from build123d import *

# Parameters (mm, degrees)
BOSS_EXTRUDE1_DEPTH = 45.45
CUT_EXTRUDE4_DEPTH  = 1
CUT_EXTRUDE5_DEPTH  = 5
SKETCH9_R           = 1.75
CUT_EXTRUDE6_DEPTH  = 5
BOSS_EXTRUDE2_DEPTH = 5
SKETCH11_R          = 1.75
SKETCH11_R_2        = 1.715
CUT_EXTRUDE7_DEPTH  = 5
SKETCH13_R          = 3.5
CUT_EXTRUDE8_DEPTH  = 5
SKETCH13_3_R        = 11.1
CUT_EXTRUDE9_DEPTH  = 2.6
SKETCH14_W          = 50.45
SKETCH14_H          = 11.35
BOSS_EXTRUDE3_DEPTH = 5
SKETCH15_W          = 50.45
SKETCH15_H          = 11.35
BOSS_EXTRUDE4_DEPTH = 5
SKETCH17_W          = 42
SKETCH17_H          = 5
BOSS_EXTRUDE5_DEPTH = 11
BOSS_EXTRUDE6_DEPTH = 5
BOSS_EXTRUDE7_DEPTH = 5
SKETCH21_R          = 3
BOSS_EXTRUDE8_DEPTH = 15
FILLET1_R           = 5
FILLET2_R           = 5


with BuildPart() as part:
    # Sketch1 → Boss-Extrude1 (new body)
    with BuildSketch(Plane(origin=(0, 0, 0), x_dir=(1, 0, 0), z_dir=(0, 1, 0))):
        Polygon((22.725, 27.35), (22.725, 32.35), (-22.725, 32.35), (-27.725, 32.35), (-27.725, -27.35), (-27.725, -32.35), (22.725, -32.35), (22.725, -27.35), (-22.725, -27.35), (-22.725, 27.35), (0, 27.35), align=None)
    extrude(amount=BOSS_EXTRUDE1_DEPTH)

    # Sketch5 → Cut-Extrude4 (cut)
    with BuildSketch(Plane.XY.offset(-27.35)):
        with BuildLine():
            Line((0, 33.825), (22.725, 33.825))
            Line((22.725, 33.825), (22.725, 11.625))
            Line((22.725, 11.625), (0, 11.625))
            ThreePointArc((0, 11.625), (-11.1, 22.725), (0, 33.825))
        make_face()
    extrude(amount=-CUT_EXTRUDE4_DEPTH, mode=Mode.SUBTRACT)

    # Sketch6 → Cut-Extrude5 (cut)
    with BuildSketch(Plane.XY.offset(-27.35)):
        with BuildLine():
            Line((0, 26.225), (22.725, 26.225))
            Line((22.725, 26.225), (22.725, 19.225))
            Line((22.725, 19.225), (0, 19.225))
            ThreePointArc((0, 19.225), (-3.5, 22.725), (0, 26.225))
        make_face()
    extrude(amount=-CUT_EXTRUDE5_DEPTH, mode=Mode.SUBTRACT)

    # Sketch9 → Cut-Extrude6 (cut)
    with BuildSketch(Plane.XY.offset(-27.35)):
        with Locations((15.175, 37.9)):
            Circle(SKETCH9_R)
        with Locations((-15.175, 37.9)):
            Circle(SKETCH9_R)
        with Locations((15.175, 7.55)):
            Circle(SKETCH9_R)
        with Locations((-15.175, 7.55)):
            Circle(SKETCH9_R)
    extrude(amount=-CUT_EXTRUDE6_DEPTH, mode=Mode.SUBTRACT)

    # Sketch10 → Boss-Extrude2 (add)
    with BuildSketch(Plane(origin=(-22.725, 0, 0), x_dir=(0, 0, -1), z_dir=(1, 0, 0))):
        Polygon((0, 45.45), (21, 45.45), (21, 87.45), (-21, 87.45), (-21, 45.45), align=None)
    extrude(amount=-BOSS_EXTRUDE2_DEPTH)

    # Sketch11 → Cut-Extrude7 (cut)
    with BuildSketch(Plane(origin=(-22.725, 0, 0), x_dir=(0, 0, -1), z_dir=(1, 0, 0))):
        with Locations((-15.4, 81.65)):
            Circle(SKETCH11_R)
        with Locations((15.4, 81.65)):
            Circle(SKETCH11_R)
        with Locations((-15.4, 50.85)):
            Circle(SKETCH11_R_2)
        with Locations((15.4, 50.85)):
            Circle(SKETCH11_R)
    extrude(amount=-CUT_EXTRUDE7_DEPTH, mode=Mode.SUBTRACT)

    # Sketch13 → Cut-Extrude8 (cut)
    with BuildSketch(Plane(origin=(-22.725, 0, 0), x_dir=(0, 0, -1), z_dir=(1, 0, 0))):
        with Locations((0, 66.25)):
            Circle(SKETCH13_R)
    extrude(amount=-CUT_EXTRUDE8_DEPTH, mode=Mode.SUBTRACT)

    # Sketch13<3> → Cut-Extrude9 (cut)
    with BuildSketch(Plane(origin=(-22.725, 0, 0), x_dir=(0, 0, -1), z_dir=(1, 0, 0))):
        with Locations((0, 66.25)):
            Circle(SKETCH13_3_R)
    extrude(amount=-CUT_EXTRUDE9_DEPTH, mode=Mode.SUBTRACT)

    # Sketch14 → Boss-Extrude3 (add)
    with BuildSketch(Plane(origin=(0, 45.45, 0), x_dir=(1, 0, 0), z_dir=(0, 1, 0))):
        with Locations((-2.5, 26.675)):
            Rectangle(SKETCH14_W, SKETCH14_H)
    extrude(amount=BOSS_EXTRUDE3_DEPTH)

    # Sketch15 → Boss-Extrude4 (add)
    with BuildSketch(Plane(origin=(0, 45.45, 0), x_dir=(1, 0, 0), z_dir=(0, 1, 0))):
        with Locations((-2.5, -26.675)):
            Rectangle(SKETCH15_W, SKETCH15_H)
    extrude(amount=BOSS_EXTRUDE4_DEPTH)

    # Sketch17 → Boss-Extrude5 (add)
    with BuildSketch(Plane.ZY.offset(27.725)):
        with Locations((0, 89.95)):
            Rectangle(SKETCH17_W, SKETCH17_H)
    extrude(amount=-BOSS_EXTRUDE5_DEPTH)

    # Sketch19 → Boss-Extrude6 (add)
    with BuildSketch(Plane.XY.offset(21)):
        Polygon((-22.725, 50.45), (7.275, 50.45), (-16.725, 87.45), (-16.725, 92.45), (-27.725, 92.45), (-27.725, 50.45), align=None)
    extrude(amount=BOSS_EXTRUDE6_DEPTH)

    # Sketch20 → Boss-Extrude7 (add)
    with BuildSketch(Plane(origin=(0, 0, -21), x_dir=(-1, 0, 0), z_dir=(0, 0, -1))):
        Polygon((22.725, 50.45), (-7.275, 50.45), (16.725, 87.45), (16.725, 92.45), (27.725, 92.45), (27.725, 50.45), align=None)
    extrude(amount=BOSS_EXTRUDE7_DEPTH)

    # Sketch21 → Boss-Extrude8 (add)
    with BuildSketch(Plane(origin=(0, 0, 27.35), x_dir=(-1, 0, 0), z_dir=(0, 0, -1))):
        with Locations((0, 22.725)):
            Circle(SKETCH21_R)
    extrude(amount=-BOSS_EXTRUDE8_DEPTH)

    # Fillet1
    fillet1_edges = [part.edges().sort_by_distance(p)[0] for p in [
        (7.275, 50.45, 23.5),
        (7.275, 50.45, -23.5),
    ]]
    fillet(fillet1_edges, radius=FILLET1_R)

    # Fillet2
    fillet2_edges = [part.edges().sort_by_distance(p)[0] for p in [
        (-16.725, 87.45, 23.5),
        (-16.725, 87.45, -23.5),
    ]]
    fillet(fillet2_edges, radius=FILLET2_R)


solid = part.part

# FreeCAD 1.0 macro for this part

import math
import FreeCAD as App
import Part
import Sketcher

V = App.Vector
Q = App.Units.Quantity


def edges_at(feature, points):
    """Names of the edges that pass closest to the given points."""
    edges = feature.Shape.Edges
    near = lambda p: min(range(len(edges)), key=lambda i: edges[i].distToShape(Part.Vertex(*p))[0])
    return sorted({f"Edge{near(p) + 1}" for p in points})


def add_polygon(sketch, points):
    """Adds a closed chain of lines whose ends are joined by coincident constraints."""
    first, n = sketch.GeometryCount, len(points)
    for a, b in zip(points, points[1:] + points[:1]):
        sketch.addGeometry(Part.LineSegment(App.Vector(*a, 0), App.Vector(*b, 0)), False)
    for i in range(n):
        sketch.addConstraint(Sketcher.Constraint("Coincident", first + i, 2, first + (i + 1) % n, 1))

doc = App.newDocument("Part")
params = doc.addObject("Spreadsheet::Sheet", "Params")
for row, (alias, value) in enumerate([
    ("sketch1_height", "5 mm"),
    ("sketch1_height2", "64.7 mm"),
    ("sketch1_width", "50.45 mm"),
    ("pad1_length", "45.45 mm"),
    ("sketch2_radius", "11.1 mm"),
    ("pocket1_length", "1 mm"),
    ("sketch3_radius", "3.5 mm"),
    ("pocket2_length", "5 mm"),
    ("sketch4_diameter", "3.5 mm"),
    ("pocket3_length", "5 mm"),
    ("sketch5_width", "42 mm"),
    ("pad2_length", "5 mm"),
    ("sketch6_diameter", "3.5 mm"),
    ("sketch6_diameter2", "3.43 mm"),
    ("pocket4_length", "5 mm"),
    ("sketch7_diameter", "7 mm"),
    ("pocket5_length", "5 mm"),
    ("sketch8_diameter", "22.2 mm"),
    ("pocket6_length", "2.6 mm"),
    ("sketch9_width", "50.45 mm"),
    ("sketch9_height", "11.35 mm"),
    ("pad3_length", "5 mm"),
    ("sketch10_width", "50.45 mm"),
    ("sketch10_height", "11.35 mm"),
    ("pad4_length", "5 mm"),
    ("sketch11_width", "5 mm"),
    ("sketch11_height", "42 mm"),
    ("pad5_length", "11 mm"),
    ("sketch12_width", "11 mm"),
    ("sketch12_width2", "35 mm"),
    ("sketch12_height", "5 mm"),
    ("sketch12_height2", "42 mm"),
    ("pad6_length", "5 mm"),
    ("sketch13_width", "35 mm"),
    ("sketch13_width2", "11 mm"),
    ("sketch13_height", "42 mm"),
    ("sketch13_height2", "5 mm"),
    ("pad7_length", "5 mm"),
    ("sketch14_diameter", "6 mm"),
    ("pad8_length", "15 mm"),
    ("fillet_radius", "5 mm"),
    ("fillet2_radius", "5 mm"),
], start=1):
    params.set(f"A{row}", alias)
    params.set(f"B{row}", "=" + value)
    params.setAlias(f"B{row}", alias)

body = doc.addObject("PartDesign::Body", "Body")

# Sketch on XZ plane
sketch1 = doc.addObject("Sketcher::SketchObject", "Sketch")
body.addObject(sketch1)
sketch1.AttachmentSupport = (doc.XZ_Plane, [""])
sketch1.MapMode = "FlatFace"
add_polygon(sketch1, [(22.725, -27.35), (22.725, -32.35), (-27.725, -32.35), (-27.725, 32.35), (22.725, 32.35), (22.725, 27.35), (-22.725, 27.35), (-22.725, -27.35)])  # lines 0-7
sketch1.addConstraint([
    Sketcher.Constraint("Vertical", 0),
    Sketcher.Constraint("Horizontal", 1),
    Sketcher.Constraint("Vertical", 2),
    Sketcher.Constraint("Horizontal", 3),
    Sketcher.Constraint("Vertical", 4),
    Sketcher.Constraint("Horizontal", 5),
    Sketcher.Constraint("Vertical", 6),
    Sketcher.Constraint("Horizontal", 7),
    Sketcher.Constraint("Symmetric", 4, 2, 6, 2, -1, 1),
    Sketcher.Constraint("Symmetric", 0, 2, 3, 2, -1),
    Sketcher.Constraint("DistanceY", 0, 2, 0, 1, Q("5 mm")),
    Sketcher.Constraint("DistanceY", 2, 1, 2, 2, Q("64.7 mm")),
    Sketcher.Constraint("DistanceX", 2, 2, 5, 2, Q("5 mm")),
    Sketcher.Constraint("DistanceX", 1, 2, 1, 1, Q("50.45 mm")),
])
sketch1.setExpression("Constraints[18]", "Params.sketch1_height")
sketch1.setExpression("Constraints[19]", "Params.sketch1_height2")
sketch1.setExpression("Constraints[21]", "Params.sketch1_width")
pad1 = doc.addObject("PartDesign::Pad", "Pad")
body.addObject(pad1)
pad1.Profile = sketch1
pad1.setExpression("Length", "Params.pad1_length")
pad1.Reversed = True

# Sketch on XY plane
sketch2 = doc.addObject("Sketcher::SketchObject", "Sketch001")
body.addObject(sketch2)
sketch2.AttachmentSupport = (doc.XY_Plane, [""])
sketch2.MapMode = "FlatFace"
sketch2.AttachmentOffset = App.Placement(V(0, 0, -27.35), App.Rotation())
sketch2.addGeometry([
    Part.LineSegment(V(22.725, 33.825, 0), V(0, 33.825, 0)),
    Part.ArcOfCircle(Part.Circle(V(0, 22.725, 0), V(0, 0, 1), 11.1), math.radians(90), math.radians(270)),
    Part.LineSegment(V(0, 11.625, 0), V(22.725, 11.625, 0)),
    Part.LineSegment(V(22.725, 11.625, 0), V(22.725, 33.825, 0)),
], False)
sketch2.addConstraint([
    Sketcher.Constraint("Tangent", 0, 2, 1, 1),
    Sketcher.Constraint("Tangent", 1, 2, 2, 1),
    Sketcher.Constraint("Coincident", 2, 2, 3, 1),
    Sketcher.Constraint("Coincident", 3, 2, 0, 1),
    Sketcher.Constraint("Horizontal", 0),
    Sketcher.Constraint("Horizontal", 2),
    Sketcher.Constraint("Vertical", 3),
    Sketcher.Constraint("PointOnObject", 1, 3, -2),
    Sketcher.Constraint("Radius", 1, Q("11.1 mm")),
    Sketcher.Constraint("DistanceX", 0, 2, 0, 1, Q("22.725 mm")),
    Sketcher.Constraint("DistanceY", -1, 1, 1, 3, Q("22.725 mm")),
])
sketch2.setExpression("Constraints[8]", "Params.sketch2_radius")
pocket1 = doc.addObject("PartDesign::Pocket", "Pocket")
body.addObject(pocket1)
pocket1.Profile = sketch2
pocket1.setExpression("Length", "Params.pocket1_length")

# Sketch on XY plane
sketch3 = doc.addObject("Sketcher::SketchObject", "Sketch002")
body.addObject(sketch3)
sketch3.AttachmentSupport = (doc.XY_Plane, [""])
sketch3.MapMode = "FlatFace"
sketch3.AttachmentOffset = App.Placement(V(0, 0, -27.35), App.Rotation())
sketch3.addGeometry([
    Part.LineSegment(V(22.725, 26.225, 0), V(0, 26.225, 0)),
    Part.ArcOfCircle(Part.Circle(V(0, 22.725, 0), V(0, 0, 1), 3.5), math.radians(90), math.radians(270)),
    Part.LineSegment(V(0, 19.225, 0), V(22.725, 19.225, 0)),
    Part.LineSegment(V(22.725, 19.225, 0), V(22.725, 26.225, 0)),
], False)
sketch3.addConstraint([
    Sketcher.Constraint("Tangent", 0, 2, 1, 1),
    Sketcher.Constraint("Tangent", 1, 2, 2, 1),
    Sketcher.Constraint("Coincident", 2, 2, 3, 1),
    Sketcher.Constraint("Coincident", 3, 2, 0, 1),
    Sketcher.Constraint("Horizontal", 0),
    Sketcher.Constraint("Horizontal", 2),
    Sketcher.Constraint("Vertical", 3),
    Sketcher.Constraint("PointOnObject", 1, 3, -2),
    Sketcher.Constraint("Radius", 1, Q("3.5 mm")),
    Sketcher.Constraint("DistanceX", 0, 2, 0, 1, Q("22.725 mm")),
    Sketcher.Constraint("DistanceY", -1, 1, 1, 3, Q("22.725 mm")),
])
sketch3.setExpression("Constraints[8]", "Params.sketch3_radius")
pocket2 = doc.addObject("PartDesign::Pocket", "Pocket001")
body.addObject(pocket2)
pocket2.Profile = sketch3
pocket2.setExpression("Length", "Params.pocket2_length")

# Sketch on XY plane
sketch4 = doc.addObject("Sketcher::SketchObject", "Sketch003")
body.addObject(sketch4)
sketch4.AttachmentSupport = (doc.XY_Plane, [""])
sketch4.MapMode = "FlatFace"
sketch4.AttachmentOffset = App.Placement(V(0, 0, -27.35), App.Rotation())
sketch4.addGeometry([
    Part.Circle(V(15.175, 37.9, 0), V(0, 0, 1), 1.75),
    Part.Circle(V(-15.175, 37.9, 0), V(0, 0, 1), 1.75),
    Part.Circle(V(15.175, 7.55, 0), V(0, 0, 1), 1.75),
    Part.Circle(V(-15.175, 7.55, 0), V(0, 0, 1), 1.75),
], False)
sketch4.addConstraint([
    Sketcher.Constraint("Equal", 0, 1),
    Sketcher.Constraint("Equal", 1, 2),
    Sketcher.Constraint("Equal", 2, 3),
    Sketcher.Constraint("Symmetric", 0, 3, 1, 3, -2),
    Sketcher.Constraint("Symmetric", 2, 3, 3, 3, -2),
    Sketcher.Constraint("Vertical", 0, 3, 2, 3),
    Sketcher.Constraint("Diameter", 0, Q("3.5 mm")),
    Sketcher.Constraint("DistanceY", -1, 1, 0, 3, Q("37.9 mm")),
    Sketcher.Constraint("DistanceY", -1, 1, 2, 3, Q("7.55 mm")),
    Sketcher.Constraint("DistanceX", 1, 3, 0, 3, Q("30.35 mm")),
])
sketch4.setExpression("Constraints[6]", "Params.sketch4_diameter")
pocket3 = doc.addObject("PartDesign::Pocket", "Pocket002")
body.addObject(pocket3)
pocket3.Profile = sketch4
pocket3.setExpression("Length", "Params.pocket3_length")

# Sketch on YZ plane
sketch5 = doc.addObject("Sketcher::SketchObject", "Sketch004")
body.addObject(sketch5)
sketch5.AttachmentSupport = (doc.YZ_Plane, [""])
sketch5.MapMode = "FlatFace"
sketch5.AttachmentOffset = App.Placement(V(0, 0, -22.725), App.Rotation())
add_polygon(sketch5, [(45.45, -21), (87.45, -21), (87.45, 21), (45.45, 21)])  # lines 0-3
sketch5.addConstraint([
    Sketcher.Constraint("Horizontal", 0),
    Sketcher.Constraint("Vertical", 1),
    Sketcher.Constraint("Horizontal", 2),
    Sketcher.Constraint("Vertical", 3),
    Sketcher.Constraint("Equal", 2, 1),
    Sketcher.Constraint("DistanceX", 0, 1, 0, 2, Q("42 mm")),
    Sketcher.Constraint("DistanceY", 0, 2, -1, 1, Q("21 mm")),
    Sketcher.Constraint("DistanceX", -1, 1, 0, 2, Q("87.45 mm")),
])
sketch5.setExpression("Constraints[9]", "Params.sketch5_width")
pad2 = doc.addObject("PartDesign::Pad", "Pad001")
body.addObject(pad2)
pad2.Profile = sketch5
pad2.setExpression("Length", "Params.pad2_length")
pad2.Reversed = True

# Sketch on YZ plane
sketch6 = doc.addObject("Sketcher::SketchObject", "Sketch005")
body.addObject(sketch6)
sketch6.AttachmentSupport = (doc.YZ_Plane, [""])
sketch6.MapMode = "FlatFace"
sketch6.AttachmentOffset = App.Placement(V(0, 0, -22.725), App.Rotation())
sketch6.addGeometry([
    Part.Circle(V(81.65, 15.4, 0), V(0, 0, 1), 1.75),
    Part.Circle(V(81.65, -15.4, 0), V(0, 0, 1), 1.75),
    Part.Circle(V(50.85, 15.4, 0), V(0, 0, 1), 1.715),
    Part.Circle(V(50.85, -15.4, 0), V(0, 0, 1), 1.75),
], False)
sketch6.addConstraint([
    Sketcher.Constraint("Equal", 0, 1),
    Sketcher.Constraint("Equal", 1, 3),
    Sketcher.Constraint("Symmetric", 0, 3, 1, 3, -1),
    Sketcher.Constraint("Symmetric", 2, 3, 3, 3, -1),
    Sketcher.Constraint("Horizontal", 0, 3, 2, 3),
    Sketcher.Constraint("Diameter", 0, Q("3.5 mm")),
    Sketcher.Constraint("Diameter", 2, Q("3.43 mm")),
    Sketcher.Constraint("DistanceY", -1, 1, 0, 3, Q("15.4 mm")),
    Sketcher.Constraint("DistanceX", 2, 3, 0, 3, Q("30.8 mm")),
    Sketcher.Constraint("DistanceX", -1, 1, 0, 3, Q("81.65 mm")),
])
sketch6.setExpression("Constraints[5]", "Params.sketch6_diameter")
sketch6.setExpression("Constraints[6]", "Params.sketch6_diameter2")
pocket4 = doc.addObject("PartDesign::Pocket", "Pocket003")
body.addObject(pocket4)
pocket4.Profile = sketch6
pocket4.setExpression("Length", "Params.pocket4_length")

# Sketch on YZ plane
sketch7 = doc.addObject("Sketcher::SketchObject", "Sketch006")
body.addObject(sketch7)
sketch7.AttachmentSupport = (doc.YZ_Plane, [""])
sketch7.MapMode = "FlatFace"
sketch7.AttachmentOffset = App.Placement(V(0, 0, -22.725), App.Rotation())
sketch7.addGeometry(Part.Circle(V(66.25, 0, 0), V(0, 0, 1), 3.5), False)
sketch7.addConstraint([
    Sketcher.Constraint("PointOnObject", 0, 3, -1),
    Sketcher.Constraint("Diameter", 0, Q("7 mm")),
    Sketcher.Constraint("DistanceX", -1, 1, 0, 3, Q("66.25 mm")),
])
sketch7.setExpression("Constraints[1]", "Params.sketch7_diameter")
pocket5 = doc.addObject("PartDesign::Pocket", "Pocket004")
body.addObject(pocket5)
pocket5.Profile = sketch7
pocket5.setExpression("Length", "Params.pocket5_length")

# Sketch on YZ plane
sketch8 = doc.addObject("Sketcher::SketchObject", "Sketch007")
body.addObject(sketch8)
sketch8.AttachmentSupport = (doc.YZ_Plane, [""])
sketch8.MapMode = "FlatFace"
sketch8.AttachmentOffset = App.Placement(V(0, 0, -22.725), App.Rotation())
sketch8.addGeometry(Part.Circle(V(66.25, 0, 0), V(0, 0, 1), 11.1), False)
sketch8.addConstraint([
    Sketcher.Constraint("PointOnObject", 0, 3, -1),
    Sketcher.Constraint("Diameter", 0, Q("22.2 mm")),
    Sketcher.Constraint("DistanceX", -1, 1, 0, 3, Q("66.25 mm")),
])
sketch8.setExpression("Constraints[1]", "Params.sketch8_diameter")
pocket6 = doc.addObject("PartDesign::Pocket", "Pocket005")
body.addObject(pocket6)
pocket6.Profile = sketch8
pocket6.setExpression("Length", "Params.pocket6_length")

# Sketch on XZ plane
sketch9 = doc.addObject("Sketcher::SketchObject", "Sketch008")
body.addObject(sketch9)
sketch9.AttachmentSupport = (doc.XZ_Plane, [""])
sketch9.MapMode = "FlatFace"
sketch9.AttachmentOffset = App.Placement(V(0, 0, -45.45), App.Rotation())
add_polygon(sketch9, [(-27.725, -32.35), (-27.725, -21), (22.725, -21), (22.725, -32.35)])  # lines 0-3
sketch9.addConstraint([
    Sketcher.Constraint("Vertical", 0),
    Sketcher.Constraint("Horizontal", 1),
    Sketcher.Constraint("Vertical", 2),
    Sketcher.Constraint("Horizontal", 3),
    Sketcher.Constraint("DistanceY", 0, 2, -1, 1, Q("21 mm")),
    Sketcher.Constraint("DistanceX", 1, 1, 1, 2, Q("50.45 mm")),
    Sketcher.Constraint("DistanceY", 0, 1, 0, 2, Q("11.35 mm")),
    Sketcher.Constraint("DistanceX", 0, 2, -1, 1, Q("27.725 mm")),
])
sketch9.setExpression("Constraints[9]", "Params.sketch9_width")
sketch9.setExpression("Constraints[10]", "Params.sketch9_height")
pad3 = doc.addObject("PartDesign::Pad", "Pad002")
body.addObject(pad3)
pad3.Profile = sketch9
pad3.setExpression("Length", "Params.pad3_length")
pad3.Reversed = True

# Sketch on XZ plane
sketch10 = doc.addObject("Sketcher::SketchObject", "Sketch009")
body.addObject(sketch10)
sketch10.AttachmentSupport = (doc.XZ_Plane, [""])
sketch10.MapMode = "FlatFace"
sketch10.AttachmentOffset = App.Placement(V(0, 0, -45.45), App.Rotation())
add_polygon(sketch10, [(-27.725, 21), (-27.725, 32.35), (22.725, 32.35), (22.725, 21)])  # lines 0-3
sketch10.addConstraint([
    Sketcher.Constraint("Vertical", 0),
    Sketcher.Constraint("Horizontal", 1),
    Sketcher.Constraint("Vertical", 2),
    Sketcher.Constraint("Horizontal", 3),
    Sketcher.Constraint("DistanceY", -1, 1, 2, 2, Q("21 mm")),
    Sketcher.Constraint("DistanceX", 1, 1, 1, 2, Q("50.45 mm")),
    Sketcher.Constraint("DistanceY", 0, 1, 0, 2, Q("11.35 mm")),
    Sketcher.Constraint("DistanceX", 0, 2, -1, 1, Q("27.725 mm")),
])
sketch10.setExpression("Constraints[9]", "Params.sketch10_width")
sketch10.setExpression("Constraints[10]", "Params.sketch10_height")
pad4 = doc.addObject("PartDesign::Pad", "Pad003")
body.addObject(pad4)
pad4.Profile = sketch10
pad4.setExpression("Length", "Params.pad4_length")
pad4.Reversed = True

# Sketch on YZ plane
sketch11 = doc.addObject("Sketcher::SketchObject", "Sketch010")
body.addObject(sketch11)
sketch11.AttachmentSupport = (doc.YZ_Plane, [""])
sketch11.MapMode = "FlatFace"
sketch11.AttachmentOffset = App.Placement(V(0, 0, -27.725), App.Rotation())
add_polygon(sketch11, [(92.45, -21), (87.45, -21), (87.45, 21), (92.45, 21)])  # lines 0-3
sketch11.addConstraint([
    Sketcher.Constraint("Horizontal", 0),
    Sketcher.Constraint("Vertical", 1),
    Sketcher.Constraint("Horizontal", 2),
    Sketcher.Constraint("Vertical", 3),
    Sketcher.Constraint("DistanceX", 0, 2, 0, 1, Q("5 mm")),
    Sketcher.Constraint("DistanceY", 1, 1, 1, 2, Q("42 mm")),
    Sketcher.Constraint("DistanceY", 0, 2, -1, 1, Q("21 mm")),
    Sketcher.Constraint("DistanceX", -1, 1, 0, 2, Q("87.45 mm")),
])
sketch11.setExpression("Constraints[8]", "Params.sketch11_width")
sketch11.setExpression("Constraints[9]", "Params.sketch11_height")
pad5 = doc.addObject("PartDesign::Pad", "Pad004")
body.addObject(pad5)
pad5.Profile = sketch11
pad5.setExpression("Length", "Params.pad5_length")

# Sketch on XY plane
sketch12 = doc.addObject("Sketcher::SketchObject", "Sketch011")
body.addObject(sketch12)
sketch12.AttachmentSupport = (doc.XY_Plane, [""])
sketch12.MapMode = "FlatFace"
sketch12.AttachmentOffset = App.Placement(V(0, 0, 21), App.Rotation())
add_polygon(sketch12, [(7.275, 50.45), (-16.725, 87.45), (-16.725, 92.45), (-27.725, 92.45), (-27.725, 50.45)])  # lines 0-4
sketch12.addConstraint([
    Sketcher.Constraint("Vertical", 1),
    Sketcher.Constraint("Horizontal", 2),
    Sketcher.Constraint("Vertical", 3),
    Sketcher.Constraint("Horizontal", 4),
    Sketcher.Constraint("DistanceX", 2, 2, 2, 1, Q("11 mm")),
    Sketcher.Constraint("DistanceX", 4, 1, 4, 2, Q("35 mm")),
    Sketcher.Constraint("DistanceY", 1, 1, 1, 2, Q("5 mm")),
    Sketcher.Constraint("DistanceY", 3, 2, 3, 1, Q("42 mm")),
    Sketcher.Constraint("DistanceY", -1, 1, 0, 2, Q("87.45 mm")),
    Sketcher.Constraint("DistanceX", 0, 2, -1, 1, Q("16.725 mm")),
])
sketch12.setExpression("Constraints[9]", "Params.sketch12_width")
sketch12.setExpression("Constraints[10]", "Params.sketch12_width2")
sketch12.setExpression("Constraints[11]", "Params.sketch12_height")
sketch12.setExpression("Constraints[12]", "Params.sketch12_height2")
pad6 = doc.addObject("PartDesign::Pad", "Pad005")
body.addObject(pad6)
pad6.Profile = sketch12
pad6.setExpression("Length", "Params.pad6_length")

# Sketch on XY plane
sketch13 = doc.addObject("Sketcher::SketchObject", "Sketch012")
body.addObject(sketch13)
sketch13.AttachmentSupport = (doc.XY_Plane, [""])
sketch13.MapMode = "FlatFace"
sketch13.AttachmentOffset = App.Placement(V(0, 0, -21), App.Rotation())
add_polygon(sketch13, [(7.275, 50.45), (-27.725, 50.45), (-27.725, 92.45), (-16.725, 92.45), (-16.725, 87.45)])  # lines 0-4
sketch13.addConstraint([
    Sketcher.Constraint("Horizontal", 0),
    Sketcher.Constraint("Vertical", 1),
    Sketcher.Constraint("Horizontal", 2),
    Sketcher.Constraint("Vertical", 3),
    Sketcher.Constraint("DistanceX", 0, 2, 0, 1, Q("35 mm")),
    Sketcher.Constraint("DistanceX", 2, 1, 2, 2, Q("11 mm")),
    Sketcher.Constraint("DistanceY", 1, 1, 1, 2, Q("42 mm")),
    Sketcher.Constraint("DistanceY", 3, 2, 3, 1, Q("5 mm")),
    Sketcher.Constraint("DistanceY", -1, 1, 0, 2, Q("50.45 mm")),
    Sketcher.Constraint("DistanceX", 0, 2, -1, 1, Q("27.725 mm")),
])
sketch13.setExpression("Constraints[9]", "Params.sketch13_width")
sketch13.setExpression("Constraints[10]", "Params.sketch13_width2")
sketch13.setExpression("Constraints[11]", "Params.sketch13_height")
sketch13.setExpression("Constraints[12]", "Params.sketch13_height2")
pad7 = doc.addObject("PartDesign::Pad", "Pad006")
body.addObject(pad7)
pad7.Profile = sketch13
pad7.setExpression("Length", "Params.pad7_length")
pad7.Reversed = True

# Sketch on XY plane
sketch14 = doc.addObject("Sketcher::SketchObject", "Sketch013")
body.addObject(sketch14)
sketch14.AttachmentSupport = (doc.XY_Plane, [""])
sketch14.MapMode = "FlatFace"
sketch14.AttachmentOffset = App.Placement(V(0, 0, 27.35), App.Rotation())
sketch14.addGeometry(Part.Circle(V(0, 22.725, 0), V(0, 0, 1), 3), False)
sketch14.addConstraint([
    Sketcher.Constraint("PointOnObject", 0, 3, -2),
    Sketcher.Constraint("Diameter", 0, Q("6 mm")),
    Sketcher.Constraint("DistanceY", -1, 1, 0, 3, Q("22.725 mm")),
])
sketch14.setExpression("Constraints[1]", "Params.sketch14_diameter")
pad8 = doc.addObject("PartDesign::Pad", "Pad007")
body.addObject(pad8)
pad8.Profile = sketch14
pad8.setExpression("Length", "Params.pad8_length")
doc.recompute()

fillet = doc.addObject("PartDesign::Fillet", "Fillet")
body.addObject(fillet)
fillet.Base = (pad8, edges_at(pad8, [(7.275, 50.45, 23.5), (7.275, 50.45, -23.5)]))
fillet.setExpression("Radius", "Params.fillet_radius")
doc.recompute()

fillet2 = doc.addObject("PartDesign::Fillet", "Fillet001")
body.addObject(fillet2)
fillet2.Base = (fillet, edges_at(fillet, [(-16.725, 87.45, 23.5), (-16.725, 87.45, -23.5)]))
fillet2.setExpression("Radius", "Params.fillet2_radius")

doc.recompute()
